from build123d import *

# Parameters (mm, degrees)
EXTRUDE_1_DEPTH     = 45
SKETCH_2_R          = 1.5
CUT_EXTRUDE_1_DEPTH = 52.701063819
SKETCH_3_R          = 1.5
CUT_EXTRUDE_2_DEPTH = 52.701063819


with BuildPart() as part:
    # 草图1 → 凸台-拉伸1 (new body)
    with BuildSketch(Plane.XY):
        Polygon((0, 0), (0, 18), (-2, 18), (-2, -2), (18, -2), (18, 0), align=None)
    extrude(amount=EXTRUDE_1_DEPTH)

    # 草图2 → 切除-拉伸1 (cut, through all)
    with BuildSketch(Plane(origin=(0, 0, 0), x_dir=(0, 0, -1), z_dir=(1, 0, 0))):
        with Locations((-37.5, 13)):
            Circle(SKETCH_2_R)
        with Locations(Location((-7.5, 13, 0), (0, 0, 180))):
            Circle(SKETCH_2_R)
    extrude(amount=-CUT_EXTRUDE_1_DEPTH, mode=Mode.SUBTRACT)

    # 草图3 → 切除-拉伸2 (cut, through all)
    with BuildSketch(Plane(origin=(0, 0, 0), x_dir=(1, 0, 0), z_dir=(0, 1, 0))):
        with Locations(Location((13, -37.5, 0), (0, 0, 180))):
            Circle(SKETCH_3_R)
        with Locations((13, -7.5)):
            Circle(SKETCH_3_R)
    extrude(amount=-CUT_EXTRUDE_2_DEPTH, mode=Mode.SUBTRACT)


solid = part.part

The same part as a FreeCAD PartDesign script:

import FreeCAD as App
import Part
import Sketcher
from FreeCAD import Vector
Q = App.Units.Quantity

doc = App.newDocument("Part")
params = doc.addObject("Spreadsheet::Sheet", "Params")
for row, (alias, value) in enumerate([
    ("sketch1_width", "2 mm"),
    ("sketch1_width2", "20 mm"),
    ("pad1_length", "45 mm"),
    ("sketch2_diameter", "3 mm"),
    ("sketch3_diameter", "3 mm"),
], start=1):
    params.set(f"A{row}", alias)
    params.set(f"B{row}", "=" + value)
    params.setAlias(f"B{row}", alias)

body = doc.addObject("PartDesign::Body", "Body")

# Sketch on XY plane
sketch1 = body.newObject("Sketcher::SketchObject", "Sketch")
sketch1.AttachmentSupport = (doc.getObject("XY_Plane"), [""])
sketch1.MapMode = "FlatFace"
sketch1.addGeometry([
    Part.LineSegment(Vector(0, 0, 0), Vector(0, 18, 0)),  # 0
    Part.LineSegment(Vector(0, 18, 0), Vector(-2, 18, 0)),  # 1
    Part.LineSegment(Vector(-2, 18, 0), Vector(-2, -2, 0)),  # 2
    Part.LineSegment(Vector(-2, -2, 0), Vector(18, -2, 0)),  # 3
    Part.LineSegment(Vector(18, -2, 0), Vector(18, 0, 0)),  # 4
    Part.LineSegment(Vector(18, 0, 0), Vector(0, 0, 0)),  # 5
], False)
sketch1.addConstraint([
    Sketcher.Constraint("Coincident", 0, 2, 1, 1),
    Sketcher.Constraint("Coincident", 1, 2, 2, 1),
    Sketcher.Constraint("Coincident", 2, 2, 3, 1),
    Sketcher.Constraint("Coincident", 3, 2, 4, 1),
    Sketcher.Constraint("Coincident", 4, 2, 5, 1),
    Sketcher.Constraint("Coincident", 5, 2, 0, 1),
    Sketcher.Constraint("Vertical", 0),
    Sketcher.Constraint("Horizontal", 1),
    Sketcher.Constraint("Vertical", 2),
    Sketcher.Constraint("Horizontal", 3),
    Sketcher.Constraint("Vertical", 4),
    Sketcher.Constraint("Horizontal", 5),
    Sketcher.Constraint("Coincident", 5, 2, -1, 1),
    Sketcher.Constraint("Equal", 5, 0),
    Sketcher.Constraint("Equal", 3, 2),
    Sketcher.Constraint("DistanceX", 1, 2, 1, 1, Q("2 mm")),
    Sketcher.Constraint("DistanceX", 3, 1, 3, 2, Q("20 mm")),
])
sketch1.setExpression("Constraints[15]", "Params.sketch1_width")
sketch1.setExpression("Constraints[16]", "Params.sketch1_width2")
pad1 = body.newObject("PartDesign::Pad", "Pad")
pad1.Profile = sketch1
pad1.setExpression("Length", "Params.pad1_length")

# Sketch on YZ plane
sketch2 = body.newObject("Sketcher::SketchObject", "Sketch001")
sketch2.AttachmentSupport = (doc.getObject("YZ_Plane"), [""])
sketch2.MapMode = "FlatFace"
sketch2.addGeometry([
    Part.Circle(Vector(13, 37.5, 0), Vector(0, 0, 1), 1.5),
    Part.Circle(Vector(13, 7.5, 0), Vector(0, 0, 1), 1.5),
], False)
sketch2.addConstraint([
    Sketcher.Constraint("Equal", 0, 1),
    Sketcher.Constraint("Vertical", 0, 3, 1, 3),
    Sketcher.Constraint("Diameter", 0, Q("3 mm")),
    Sketcher.Constraint("DistanceX", -1, 1, 0, 3, Q("13 mm")),
    Sketcher.Constraint("DistanceY", 1, 3, 0, 3, Q("30 mm")),
    Sketcher.Constraint("DistanceY", -1, 1, 0, 3, Q("37.5 mm")),
])
sketch2.setExpression("Constraints[2]", "Params.sketch2_diameter")
pocket1 = body.newObject("PartDesign::Pocket", "Pocket")
pocket1.Profile = sketch2
pocket1.Type = "ThroughAll"

# Sketch on XZ plane
sketch3 = body.newObject("Sketcher::SketchObject", "Sketch002")
sketch3.AttachmentSupport = (doc.getObject("XZ_Plane"), [""])
sketch3.MapMode = "FlatFace"
sketch3.addGeometry([
    Part.Circle(Vector(13, 37.5, 0), Vector(0, 0, 1), 1.5),
    Part.Circle(Vector(13, 7.5, 0), Vector(0, 0, 1), 1.5),
], False)
sketch3.addConstraint([
    Sketcher.Constraint("Equal", 0, 1),
    Sketcher.Constraint("Vertical", 0, 3, 1, 3),
    Sketcher.Constraint("Diameter", 0, Q("3 mm")),
    Sketcher.Constraint("DistanceX", -1, 1, 0, 3, Q("13 mm")),
    Sketcher.Constraint("DistanceY", 1, 3, 0, 3, Q("30 mm")),
    Sketcher.Constraint("DistanceY", -1, 1, 0, 3, Q("37.5 mm")),
])
sketch3.setExpression("Constraints[2]", "Params.sketch3_diameter")
pocket2 = body.newObject("PartDesign::Pocket", "Pocket001")
pocket2.Profile = sketch3
pocket2.Type = "ThroughAll"
pocket2.Reversed = True

doc.recompute()
